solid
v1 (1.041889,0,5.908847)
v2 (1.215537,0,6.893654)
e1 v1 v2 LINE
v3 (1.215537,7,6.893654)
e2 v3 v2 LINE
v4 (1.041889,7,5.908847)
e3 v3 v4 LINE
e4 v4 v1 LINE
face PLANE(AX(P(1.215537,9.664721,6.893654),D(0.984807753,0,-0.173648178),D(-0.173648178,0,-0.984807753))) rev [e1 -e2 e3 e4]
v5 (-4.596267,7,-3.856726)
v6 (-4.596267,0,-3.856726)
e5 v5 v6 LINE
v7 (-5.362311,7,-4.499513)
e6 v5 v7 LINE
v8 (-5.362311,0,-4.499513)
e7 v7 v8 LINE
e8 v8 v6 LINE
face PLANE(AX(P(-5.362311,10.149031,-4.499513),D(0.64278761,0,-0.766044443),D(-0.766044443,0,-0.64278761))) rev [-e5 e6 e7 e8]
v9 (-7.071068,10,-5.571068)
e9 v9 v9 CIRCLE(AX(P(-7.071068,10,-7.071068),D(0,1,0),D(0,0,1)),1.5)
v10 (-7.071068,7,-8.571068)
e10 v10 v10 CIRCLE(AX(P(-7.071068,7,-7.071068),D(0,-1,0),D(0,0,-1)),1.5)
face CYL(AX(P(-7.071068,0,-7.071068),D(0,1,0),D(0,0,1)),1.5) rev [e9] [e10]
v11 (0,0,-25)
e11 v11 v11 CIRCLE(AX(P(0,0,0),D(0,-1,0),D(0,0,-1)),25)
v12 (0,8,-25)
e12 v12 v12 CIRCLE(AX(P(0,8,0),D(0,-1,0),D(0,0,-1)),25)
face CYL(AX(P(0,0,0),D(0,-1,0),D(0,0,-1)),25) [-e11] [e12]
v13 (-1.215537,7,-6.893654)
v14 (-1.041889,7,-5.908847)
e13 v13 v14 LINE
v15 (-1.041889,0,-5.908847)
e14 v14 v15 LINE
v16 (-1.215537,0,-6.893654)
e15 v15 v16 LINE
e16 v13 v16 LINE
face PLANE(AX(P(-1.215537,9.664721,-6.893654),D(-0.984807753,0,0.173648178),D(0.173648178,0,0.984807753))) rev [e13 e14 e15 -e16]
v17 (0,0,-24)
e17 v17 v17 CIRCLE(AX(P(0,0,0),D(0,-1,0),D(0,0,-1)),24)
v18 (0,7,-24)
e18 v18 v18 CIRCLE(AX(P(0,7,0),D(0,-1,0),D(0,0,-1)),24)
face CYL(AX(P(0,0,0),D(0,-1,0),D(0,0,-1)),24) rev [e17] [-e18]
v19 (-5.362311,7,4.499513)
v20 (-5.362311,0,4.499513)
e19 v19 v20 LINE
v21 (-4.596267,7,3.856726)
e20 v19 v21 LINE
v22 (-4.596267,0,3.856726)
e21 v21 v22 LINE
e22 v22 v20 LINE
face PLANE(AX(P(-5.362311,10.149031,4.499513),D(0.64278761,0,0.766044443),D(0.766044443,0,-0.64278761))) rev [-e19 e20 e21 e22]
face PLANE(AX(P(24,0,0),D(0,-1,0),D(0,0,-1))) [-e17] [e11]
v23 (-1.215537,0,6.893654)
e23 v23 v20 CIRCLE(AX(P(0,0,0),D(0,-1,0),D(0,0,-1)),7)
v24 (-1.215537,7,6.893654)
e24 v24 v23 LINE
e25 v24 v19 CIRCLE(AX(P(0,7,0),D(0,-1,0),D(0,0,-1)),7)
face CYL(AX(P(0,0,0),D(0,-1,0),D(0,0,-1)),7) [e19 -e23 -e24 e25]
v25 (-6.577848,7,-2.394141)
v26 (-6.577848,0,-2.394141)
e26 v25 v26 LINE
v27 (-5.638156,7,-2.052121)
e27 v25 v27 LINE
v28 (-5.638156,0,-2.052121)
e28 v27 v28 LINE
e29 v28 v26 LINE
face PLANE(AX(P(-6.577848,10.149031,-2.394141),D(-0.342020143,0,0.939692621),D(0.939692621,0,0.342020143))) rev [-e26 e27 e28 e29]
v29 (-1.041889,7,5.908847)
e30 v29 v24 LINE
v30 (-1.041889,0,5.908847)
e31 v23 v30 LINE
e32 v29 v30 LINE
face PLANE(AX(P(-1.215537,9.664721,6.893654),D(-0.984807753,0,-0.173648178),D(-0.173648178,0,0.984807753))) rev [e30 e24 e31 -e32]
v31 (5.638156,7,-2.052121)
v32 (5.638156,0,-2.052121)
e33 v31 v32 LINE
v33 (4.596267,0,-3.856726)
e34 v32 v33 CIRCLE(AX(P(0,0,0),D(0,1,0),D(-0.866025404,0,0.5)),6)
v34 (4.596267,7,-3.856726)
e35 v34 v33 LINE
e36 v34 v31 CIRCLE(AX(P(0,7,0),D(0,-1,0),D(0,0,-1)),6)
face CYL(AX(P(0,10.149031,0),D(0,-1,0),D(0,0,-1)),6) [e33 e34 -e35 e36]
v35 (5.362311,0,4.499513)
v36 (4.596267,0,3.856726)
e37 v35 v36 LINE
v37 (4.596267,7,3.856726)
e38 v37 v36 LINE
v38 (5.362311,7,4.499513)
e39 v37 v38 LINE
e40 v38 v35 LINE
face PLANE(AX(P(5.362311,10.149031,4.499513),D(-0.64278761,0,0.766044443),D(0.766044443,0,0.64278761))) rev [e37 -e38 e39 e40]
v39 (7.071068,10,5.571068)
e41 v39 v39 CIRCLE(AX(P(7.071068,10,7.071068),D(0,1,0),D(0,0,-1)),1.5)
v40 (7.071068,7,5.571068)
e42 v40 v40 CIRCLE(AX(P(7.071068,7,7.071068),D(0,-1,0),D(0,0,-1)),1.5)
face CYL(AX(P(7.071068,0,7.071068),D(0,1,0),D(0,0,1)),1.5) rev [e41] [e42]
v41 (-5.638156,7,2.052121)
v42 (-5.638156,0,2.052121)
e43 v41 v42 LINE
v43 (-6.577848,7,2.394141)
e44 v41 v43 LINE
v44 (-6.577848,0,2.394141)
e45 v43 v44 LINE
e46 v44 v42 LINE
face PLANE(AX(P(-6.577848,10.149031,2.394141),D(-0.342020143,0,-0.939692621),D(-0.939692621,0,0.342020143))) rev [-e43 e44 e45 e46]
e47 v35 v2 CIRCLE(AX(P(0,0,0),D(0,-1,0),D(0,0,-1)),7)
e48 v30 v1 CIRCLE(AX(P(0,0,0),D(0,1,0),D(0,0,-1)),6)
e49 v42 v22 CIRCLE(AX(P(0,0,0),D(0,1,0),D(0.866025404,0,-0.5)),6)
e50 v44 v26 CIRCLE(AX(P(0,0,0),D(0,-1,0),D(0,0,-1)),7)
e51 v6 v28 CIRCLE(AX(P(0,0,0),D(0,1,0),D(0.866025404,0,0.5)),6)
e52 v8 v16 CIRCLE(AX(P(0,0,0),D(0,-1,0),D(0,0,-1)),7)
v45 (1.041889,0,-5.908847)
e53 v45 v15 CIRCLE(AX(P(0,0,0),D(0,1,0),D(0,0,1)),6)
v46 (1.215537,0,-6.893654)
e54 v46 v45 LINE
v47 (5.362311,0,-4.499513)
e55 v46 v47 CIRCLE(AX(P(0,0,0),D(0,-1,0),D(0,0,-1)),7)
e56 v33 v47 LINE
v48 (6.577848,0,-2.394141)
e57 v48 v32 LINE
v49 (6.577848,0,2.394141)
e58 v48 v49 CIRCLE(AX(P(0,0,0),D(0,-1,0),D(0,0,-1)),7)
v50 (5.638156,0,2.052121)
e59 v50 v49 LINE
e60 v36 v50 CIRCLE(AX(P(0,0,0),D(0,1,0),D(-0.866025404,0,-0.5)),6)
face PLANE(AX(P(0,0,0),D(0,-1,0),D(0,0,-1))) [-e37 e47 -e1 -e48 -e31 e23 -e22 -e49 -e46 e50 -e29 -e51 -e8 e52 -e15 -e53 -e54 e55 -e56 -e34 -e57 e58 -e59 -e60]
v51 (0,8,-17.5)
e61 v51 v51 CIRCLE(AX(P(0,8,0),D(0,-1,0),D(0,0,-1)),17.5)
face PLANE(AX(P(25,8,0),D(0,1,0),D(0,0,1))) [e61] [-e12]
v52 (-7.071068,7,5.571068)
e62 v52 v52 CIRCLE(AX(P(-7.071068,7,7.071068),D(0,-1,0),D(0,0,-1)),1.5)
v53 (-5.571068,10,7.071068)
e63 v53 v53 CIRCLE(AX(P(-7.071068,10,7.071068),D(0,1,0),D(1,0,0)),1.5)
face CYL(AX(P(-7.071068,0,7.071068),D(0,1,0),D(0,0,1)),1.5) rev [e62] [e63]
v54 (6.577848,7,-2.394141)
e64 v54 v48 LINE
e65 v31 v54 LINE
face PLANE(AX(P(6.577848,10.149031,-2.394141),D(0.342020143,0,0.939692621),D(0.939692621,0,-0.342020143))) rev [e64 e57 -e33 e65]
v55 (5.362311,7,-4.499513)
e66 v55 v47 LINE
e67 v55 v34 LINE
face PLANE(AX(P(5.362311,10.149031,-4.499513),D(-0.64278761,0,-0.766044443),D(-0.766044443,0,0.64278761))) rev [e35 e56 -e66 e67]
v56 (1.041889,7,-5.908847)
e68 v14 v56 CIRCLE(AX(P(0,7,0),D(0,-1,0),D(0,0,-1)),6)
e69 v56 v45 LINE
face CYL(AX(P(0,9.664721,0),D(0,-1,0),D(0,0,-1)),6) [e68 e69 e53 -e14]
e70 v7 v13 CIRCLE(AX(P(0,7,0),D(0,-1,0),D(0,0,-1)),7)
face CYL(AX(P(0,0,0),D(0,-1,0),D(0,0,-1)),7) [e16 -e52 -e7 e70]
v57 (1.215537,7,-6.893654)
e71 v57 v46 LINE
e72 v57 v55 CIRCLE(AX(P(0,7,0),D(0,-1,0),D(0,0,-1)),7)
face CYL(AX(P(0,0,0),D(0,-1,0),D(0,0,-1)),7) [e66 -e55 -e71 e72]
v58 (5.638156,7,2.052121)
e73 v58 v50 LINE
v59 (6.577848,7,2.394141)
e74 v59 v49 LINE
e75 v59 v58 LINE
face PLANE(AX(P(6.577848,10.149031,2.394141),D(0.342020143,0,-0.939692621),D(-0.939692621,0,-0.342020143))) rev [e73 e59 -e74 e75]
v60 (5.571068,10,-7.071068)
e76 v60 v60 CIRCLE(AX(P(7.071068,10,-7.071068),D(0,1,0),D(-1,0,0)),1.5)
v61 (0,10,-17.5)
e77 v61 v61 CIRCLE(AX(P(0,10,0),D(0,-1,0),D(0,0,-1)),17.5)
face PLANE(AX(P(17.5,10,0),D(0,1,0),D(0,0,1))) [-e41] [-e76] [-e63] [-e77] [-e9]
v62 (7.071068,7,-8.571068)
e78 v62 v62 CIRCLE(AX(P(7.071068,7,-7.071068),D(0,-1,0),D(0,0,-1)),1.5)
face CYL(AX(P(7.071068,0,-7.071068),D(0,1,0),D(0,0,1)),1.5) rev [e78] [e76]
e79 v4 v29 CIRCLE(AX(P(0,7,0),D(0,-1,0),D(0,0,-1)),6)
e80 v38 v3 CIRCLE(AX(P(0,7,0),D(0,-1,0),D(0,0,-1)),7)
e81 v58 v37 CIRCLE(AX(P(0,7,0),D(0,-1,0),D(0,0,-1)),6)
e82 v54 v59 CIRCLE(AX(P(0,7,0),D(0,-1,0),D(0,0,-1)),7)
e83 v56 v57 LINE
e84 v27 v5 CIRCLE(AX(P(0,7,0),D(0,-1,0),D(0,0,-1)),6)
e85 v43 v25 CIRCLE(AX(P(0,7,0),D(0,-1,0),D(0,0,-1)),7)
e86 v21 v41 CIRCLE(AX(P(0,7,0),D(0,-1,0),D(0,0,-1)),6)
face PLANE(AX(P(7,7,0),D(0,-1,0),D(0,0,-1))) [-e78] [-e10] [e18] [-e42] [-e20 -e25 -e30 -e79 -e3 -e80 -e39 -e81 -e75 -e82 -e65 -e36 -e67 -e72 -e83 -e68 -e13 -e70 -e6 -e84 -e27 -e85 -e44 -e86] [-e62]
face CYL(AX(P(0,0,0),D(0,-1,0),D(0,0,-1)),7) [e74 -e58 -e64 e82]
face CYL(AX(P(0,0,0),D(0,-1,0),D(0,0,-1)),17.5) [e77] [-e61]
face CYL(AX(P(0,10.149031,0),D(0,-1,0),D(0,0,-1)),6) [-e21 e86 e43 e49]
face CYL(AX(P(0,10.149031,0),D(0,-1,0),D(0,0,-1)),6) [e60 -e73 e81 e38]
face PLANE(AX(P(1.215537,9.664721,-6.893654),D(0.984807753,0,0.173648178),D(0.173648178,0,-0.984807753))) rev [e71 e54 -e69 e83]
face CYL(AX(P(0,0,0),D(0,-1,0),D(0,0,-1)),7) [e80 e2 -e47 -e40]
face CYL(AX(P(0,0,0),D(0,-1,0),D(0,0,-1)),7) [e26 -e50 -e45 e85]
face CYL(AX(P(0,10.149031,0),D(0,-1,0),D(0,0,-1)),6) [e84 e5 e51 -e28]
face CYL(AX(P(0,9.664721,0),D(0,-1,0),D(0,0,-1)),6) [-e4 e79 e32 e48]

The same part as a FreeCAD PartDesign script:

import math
import FreeCAD as App
import Part
import Sketcher
Q = App.Units.Quantity

doc = App.newDocument("Part")
body = doc.addObject("PartDesign::Body", "Body")

sketch1 = body.newObject("Sketcher::SketchObject", "Sketch")
sketch1.AttachmentSupport = (doc.getObject("XY_Plane"), [""])
sketch1.MapMode = "FlatFace"
sketch1.addGeometry(Part.LineSegment(App.Vector(0, 0, 0), App.Vector(7, 0, 0)), False)
sketch1.addGeometry(Part.LineSegment(App.Vector(7, 0, 0), App.Vector(7, 7, 0)), False)
sketch1.addGeometry(Part.LineSegment(App.Vector(7, 7, 0), App.Vector(24, 7, 0)), False)
sketch1.addGeometry(Part.LineSegment(App.Vector(24, 7, 0), App.Vector(24, 0, 0)), False)
sketch1.addGeometry(Part.LineSegment(App.Vector(24, 0, 0), App.Vector(25, 0, 0)), False)
sketch1.addGeometry(Part.LineSegment(App.Vector(25, 0, 0), App.Vector(25, 8, 0)), False)
sketch1.addGeometry(Part.LineSegment(App.Vector(25, 8, 0), App.Vector(17.5, 8, 0)), False)
sketch1.addGeometry(Part.LineSegment(App.Vector(17.5, 8, 0), App.Vector(17.5, 10, 0)), False)
sketch1.addGeometry(Part.LineSegment(App.Vector(17.5, 10, 0), App.Vector(0, 10, 0)), False)
sketch1.addGeometry(Part.LineSegment(App.Vector(0, 10, 0), App.Vector(0, 0, 0)), False)
sketch1.addConstraint(Sketcher.Constraint("Coincident", 0, 2, 1, 1))
sketch1.addConstraint(Sketcher.Constraint("Coincident", 1, 2, 2, 1))
sketch1.addConstraint(Sketcher.Constraint("Coincident", 2, 2, 3, 1))
sketch1.addConstraint(Sketcher.Constraint("Coincident", 3, 2, 4, 1))
sketch1.addConstraint(Sketcher.Constraint("Coincident", 4, 2, 5, 1))
sketch1.addConstraint(Sketcher.Constraint("Coincident", 5, 2, 6, 1))
sketch1.addConstraint(Sketcher.Constraint("Coincident", 6, 2, 7, 1))
sketch1.addConstraint(Sketcher.Constraint("Coincident", 7, 2, 8, 1))
sketch1.addConstraint(Sketcher.Constraint("Coincident", 8, 2, 9, 1))
sketch1.addConstraint(Sketcher.Constraint("Coincident", 9, 2, 0, 1))
sketch1.addConstraint(Sketcher.Constraint("Horizontal", 0))
sketch1.addConstraint(Sketcher.Constraint("Vertical", 1))
sketch1.addConstraint(Sketcher.Constraint("Horizontal", 2))
sketch1.addConstraint(Sketcher.Constraint("Vertical", 3))
sketch1.addConstraint(Sketcher.Constraint("Horizontal", 4))
sketch1.addConstraint(Sketcher.Constraint("Vertical", 5))
sketch1.addConstraint(Sketcher.Constraint("Horizontal", 6))
sketch1.addConstraint(Sketcher.Constraint("Vertical", 7))
sketch1.addConstraint(Sketcher.Constraint("Horizontal", 8))
sketch1.addConstraint(Sketcher.Constraint("Vertical", 9))
sketch1.addConstraint(Sketcher.Constraint("Coincident", 9, 2, -1, 1))
sketch1.addConstraint(Sketcher.Constraint("PointOnObject", 3, 2, -1))
sketch1.addConstraint(Sketcher.Constraint("Equal", 0, 1))
sketch1.addConstraint(Sketcher.Constraint("DistanceX", 0, 1, 0, 2, Q("7 mm")))
sketch1.addConstraint(Sketcher.Constraint("DistanceX", 2, 1, 2, 2, Q("17 mm")))
sketch1.addConstraint(Sketcher.Constraint("DistanceX", 4, 1, 4, 2, Q("1 mm")))
sketch1.addConstraint(Sketcher.Constraint("DistanceY", 5, 1, 5, 2, Q("8 mm")))
sketch1.addConstraint(Sketcher.Constraint("DistanceY", 7, 1, 7, 2, Q("2 mm")))
sketch1.addConstraint(Sketcher.Constraint("DistanceX", 6, 2, 6, 1, Q("7.5 mm")))
revolution = body.newObject("PartDesign::Revolution", "Revolution")
revolution.Profile = sketch1
revolution.ReferenceAxis = (sketch1, ["V_Axis"])
revolution.Angle = 360

sketch2 = body.newObject("Sketcher::SketchObject", "Sketch001")
sketch2.AttachmentSupport = (doc.getObject("XZ_Plane"), [""])
sketch2.MapMode = "FlatFace"
sketch2.AttachmentOffset = App.Placement(App.Vector(0, 0, -10), App.Rotation())
sketch2.addGeometry(Part.Circle(App.Vector(-7.1, -7.1, 0), App.Vector(0, 0, 1), 1.5), False)
sketch2.addConstraint(Sketcher.Constraint("Diameter", 0, Q("3 mm")))
sketch2.addConstraint(Sketcher.Constraint("DistanceX", 0, 3, -1, 1, Q("7.071068 mm")))
sketch2.addConstraint(Sketcher.Constraint("DistanceY", 0, 3, -1, 1, Q("7.071068 mm")))
pocket1 = body.newObject("PartDesign::Pocket", "Pocket")
pocket1.Profile = sketch2
pocket1.Type = "ThroughAll"
pocket1.Reversed = True
doc.recompute()

polarpattern = body.newObject("PartDesign::PolarPattern", "PolarPattern")
polarpattern.Originals = [pocket1]
polarpattern.Axis = (doc.getObject("Y_Axis"), [""])
polarpattern.Angle = 360
polarpattern.Occurrences = 4
body.Tip = polarpattern

sketch3 = body.newObject("Sketcher::SketchObject", "Sketch002")
sketch3.AttachmentSupport = (doc.getObject("XZ_Plane"), [""])
sketch3.MapMode = "FlatFace"
sketch3.AttachmentOffset = App.Placement(App.Vector(0, 0, -7), App.Rotation())
sketch3.addGeometry(Part.LineSegment(App.Vector(-1.2, 6.9, 0), App.Vector(-1, 5.9, 0)), False)
sketch3.addGeometry(Part.ArcOfCircle(Part.Circle(App.Vector(0, 0, 0), App.Vector(0, 0, 1), 6), math.radians(80), math.radians(100)), False)
sketch3.addGeometry(Part.LineSegment(App.Vector(1, 5.9, 0), App.Vector(1.2, 6.9, 0)), False)
sketch3.addGeometry(Part.ArcOfCircle(Part.Circle(App.Vector(0, 0, 0), App.Vector(0, 0, 1), 7), math.radians(80), math.radians(100)), False)
sketch3.addConstraint(Sketcher.Constraint("Coincident", 0, 2, 1, 2))
sketch3.addConstraint(Sketcher.Constraint("Coincident", 1, 1, 2, 1))
sketch3.addConstraint(Sketcher.Constraint("Coincident", 2, 2, 3, 1))
sketch3.addConstraint(Sketcher.Constraint("Coincident", 3, 2, 0, 1))
sketch3.addConstraint(Sketcher.Constraint("Coincident", 1, 3, -1, 1))
sketch3.addConstraint(Sketcher.Constraint("Coincident", 3, 3, -1, 1))
sketch3.addConstraint(Sketcher.Constraint("Horizontal", 0, 2, 1, 1))
sketch3.addConstraint(Sketcher.Constraint("Horizontal", 2, 2, 3, 2))
sketch3.addConstraint(Sketcher.Constraint("Radius", 1, Q("6 mm")))
sketch3.addConstraint(Sketcher.Constraint("Radius", 3, Q("7 mm")))
sketch3.addConstraint(Sketcher.Constraint("Angle", 0, Q("-80 deg")))
sketch3.addConstraint(Sketcher.Constraint("DistanceX", 0, 2, -1, 1, Q("1.041889 mm")))
pocket2 = body.newObject("PartDesign::Pocket", "Pocket001")
pocket2.Profile = sketch3
pocket2.Length = 7
pocket2.Reversed = True
doc.recompute()

polarpattern2 = body.newObject("PartDesign::PolarPattern", "PolarPattern001")
polarpattern2.Originals = [pocket2]
polarpattern2.Axis = (doc.getObject("Y_Axis"), [""])
polarpattern2.Angle = 360
polarpattern2.Occurrences = 6
body.Tip = polarpattern2

doc.recompute()
